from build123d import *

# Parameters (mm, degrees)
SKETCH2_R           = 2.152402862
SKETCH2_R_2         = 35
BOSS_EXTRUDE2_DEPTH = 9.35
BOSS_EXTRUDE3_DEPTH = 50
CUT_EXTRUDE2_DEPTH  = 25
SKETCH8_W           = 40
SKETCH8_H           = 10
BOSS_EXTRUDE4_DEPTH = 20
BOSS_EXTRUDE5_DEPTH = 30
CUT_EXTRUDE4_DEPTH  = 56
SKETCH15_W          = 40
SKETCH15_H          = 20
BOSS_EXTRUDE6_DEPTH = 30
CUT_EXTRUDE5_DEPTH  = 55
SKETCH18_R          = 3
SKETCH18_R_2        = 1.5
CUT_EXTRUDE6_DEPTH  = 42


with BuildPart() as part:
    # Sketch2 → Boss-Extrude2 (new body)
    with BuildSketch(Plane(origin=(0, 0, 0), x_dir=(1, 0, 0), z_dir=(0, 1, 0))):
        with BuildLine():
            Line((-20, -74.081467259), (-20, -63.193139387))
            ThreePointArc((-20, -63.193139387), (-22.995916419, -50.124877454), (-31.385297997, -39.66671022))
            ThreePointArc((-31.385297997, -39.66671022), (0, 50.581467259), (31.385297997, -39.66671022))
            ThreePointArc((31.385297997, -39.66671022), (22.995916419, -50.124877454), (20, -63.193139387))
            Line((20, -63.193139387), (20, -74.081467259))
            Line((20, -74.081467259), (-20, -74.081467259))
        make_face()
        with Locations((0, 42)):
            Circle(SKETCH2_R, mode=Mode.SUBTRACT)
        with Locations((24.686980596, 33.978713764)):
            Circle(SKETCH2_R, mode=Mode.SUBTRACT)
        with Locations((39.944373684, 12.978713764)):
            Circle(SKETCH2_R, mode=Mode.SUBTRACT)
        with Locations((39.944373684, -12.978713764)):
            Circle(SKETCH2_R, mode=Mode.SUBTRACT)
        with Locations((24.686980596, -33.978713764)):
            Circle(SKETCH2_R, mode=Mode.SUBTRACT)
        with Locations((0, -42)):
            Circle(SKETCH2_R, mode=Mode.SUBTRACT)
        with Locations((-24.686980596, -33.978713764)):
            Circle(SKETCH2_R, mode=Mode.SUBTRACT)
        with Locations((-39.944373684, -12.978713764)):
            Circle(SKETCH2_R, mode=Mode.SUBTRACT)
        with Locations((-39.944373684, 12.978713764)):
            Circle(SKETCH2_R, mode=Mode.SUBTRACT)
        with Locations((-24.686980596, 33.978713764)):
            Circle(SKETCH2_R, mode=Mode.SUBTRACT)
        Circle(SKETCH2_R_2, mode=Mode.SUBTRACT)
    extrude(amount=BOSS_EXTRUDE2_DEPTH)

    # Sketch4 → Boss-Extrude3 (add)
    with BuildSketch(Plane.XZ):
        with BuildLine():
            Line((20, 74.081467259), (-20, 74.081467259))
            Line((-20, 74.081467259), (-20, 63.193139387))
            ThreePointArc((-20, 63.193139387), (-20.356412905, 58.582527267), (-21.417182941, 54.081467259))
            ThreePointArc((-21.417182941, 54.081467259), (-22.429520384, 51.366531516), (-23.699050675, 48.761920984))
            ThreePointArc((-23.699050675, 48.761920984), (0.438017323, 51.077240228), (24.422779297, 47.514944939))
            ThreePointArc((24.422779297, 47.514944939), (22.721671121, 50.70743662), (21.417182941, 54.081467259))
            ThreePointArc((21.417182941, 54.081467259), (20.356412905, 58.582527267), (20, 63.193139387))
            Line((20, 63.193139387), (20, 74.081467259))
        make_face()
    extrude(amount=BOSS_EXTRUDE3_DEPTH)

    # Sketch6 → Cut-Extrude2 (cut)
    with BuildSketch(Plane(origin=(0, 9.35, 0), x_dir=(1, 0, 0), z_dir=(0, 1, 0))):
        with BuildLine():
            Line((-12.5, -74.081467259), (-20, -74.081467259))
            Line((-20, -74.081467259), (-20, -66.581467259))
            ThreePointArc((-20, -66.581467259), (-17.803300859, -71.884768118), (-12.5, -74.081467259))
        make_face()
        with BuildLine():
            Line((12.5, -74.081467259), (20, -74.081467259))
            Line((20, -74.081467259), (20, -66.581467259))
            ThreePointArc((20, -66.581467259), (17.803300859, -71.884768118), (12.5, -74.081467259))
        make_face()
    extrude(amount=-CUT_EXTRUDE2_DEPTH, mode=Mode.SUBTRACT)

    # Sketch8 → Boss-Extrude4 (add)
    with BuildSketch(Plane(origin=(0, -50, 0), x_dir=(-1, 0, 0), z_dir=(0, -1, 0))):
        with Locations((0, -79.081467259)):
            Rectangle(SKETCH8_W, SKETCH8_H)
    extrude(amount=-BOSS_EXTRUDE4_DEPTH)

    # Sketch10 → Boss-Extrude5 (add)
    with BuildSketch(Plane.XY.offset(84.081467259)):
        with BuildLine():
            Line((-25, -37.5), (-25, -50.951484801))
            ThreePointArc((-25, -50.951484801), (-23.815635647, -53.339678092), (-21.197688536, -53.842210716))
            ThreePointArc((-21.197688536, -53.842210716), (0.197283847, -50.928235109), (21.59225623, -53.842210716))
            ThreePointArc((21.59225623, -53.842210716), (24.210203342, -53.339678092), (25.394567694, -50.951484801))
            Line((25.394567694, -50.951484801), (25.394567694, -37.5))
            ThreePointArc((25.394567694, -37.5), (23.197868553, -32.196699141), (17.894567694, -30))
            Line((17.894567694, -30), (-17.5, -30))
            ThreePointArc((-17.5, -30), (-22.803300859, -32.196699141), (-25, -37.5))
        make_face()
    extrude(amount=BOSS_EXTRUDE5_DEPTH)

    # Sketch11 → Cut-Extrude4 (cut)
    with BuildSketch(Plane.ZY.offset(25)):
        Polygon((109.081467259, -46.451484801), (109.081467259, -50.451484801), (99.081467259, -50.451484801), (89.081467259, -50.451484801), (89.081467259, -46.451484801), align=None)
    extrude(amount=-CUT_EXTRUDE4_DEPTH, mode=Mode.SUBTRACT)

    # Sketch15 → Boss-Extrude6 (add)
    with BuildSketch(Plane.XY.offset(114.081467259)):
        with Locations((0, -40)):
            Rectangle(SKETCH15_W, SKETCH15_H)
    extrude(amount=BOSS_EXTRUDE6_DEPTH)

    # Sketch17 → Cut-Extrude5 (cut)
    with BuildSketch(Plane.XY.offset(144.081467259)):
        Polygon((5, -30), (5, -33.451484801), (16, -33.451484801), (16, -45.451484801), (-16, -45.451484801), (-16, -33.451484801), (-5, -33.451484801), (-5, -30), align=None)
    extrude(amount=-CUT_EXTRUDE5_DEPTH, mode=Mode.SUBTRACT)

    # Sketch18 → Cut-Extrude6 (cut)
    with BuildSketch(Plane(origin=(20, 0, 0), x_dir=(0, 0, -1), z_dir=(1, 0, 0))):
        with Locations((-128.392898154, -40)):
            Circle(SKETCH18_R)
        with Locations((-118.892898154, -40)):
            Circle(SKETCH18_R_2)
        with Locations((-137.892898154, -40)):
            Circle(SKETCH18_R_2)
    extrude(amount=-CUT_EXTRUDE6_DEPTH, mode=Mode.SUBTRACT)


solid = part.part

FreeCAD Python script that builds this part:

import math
import FreeCAD as App
import Part
import Sketcher
Q = App.Units.Quantity


def add_polygon(sketch, points):
    """Adds a closed chain of lines whose ends are joined by coincident constraints."""
    first, n = sketch.GeometryCount, len(points)
    for a, b in zip(points, points[1:] + points[:1]):
        sketch.addGeometry(Part.LineSegment(App.Vector(*a, 0), App.Vector(*b, 0)), False)
    for i in range(n):
        sketch.addConstraint(Sketcher.Constraint("Coincident", first + i, 2, first + (i + 1) % n, 1))

doc = App.newDocument("Part")
body = doc.addObject("PartDesign::Body", "Body")

# Sketch on XZ plane
sketch1 = body.newObject("Sketcher::SketchObject", "Sketch")
sketch1.AttachmentSupport = (doc.getObject("XZ_Plane"), [""])
sketch1.MapMode = "FlatFace"
sketch1.addGeometry([
    Part.LineSegment(App.Vector(-20, 63.2, 0), App.Vector(-20, 74.1, 0)),  # 0
    Part.LineSegment(App.Vector(-20, 74.1, 0), App.Vector(20, 74.1, 0)),  # 1
    Part.LineSegment(App.Vector(20, 74.1, 0), App.Vector(20, 63.2, 0)),  # 2
    Part.ArcOfCircle(Part.Circle(App.Vector(50, 63.2, 0), App.Vector(0, 0, 1), 30), math.radians(180), math.radians(232)),  # 3
    Part.ArcOfCircle(Part.Circle(App.Vector(0, 0, 0), App.Vector(0, 0, 1), 50.6), math.radians(128), math.radians(412)),  # 4
    Part.ArcOfCircle(Part.Circle(App.Vector(-50, 63.2, 0), App.Vector(0, 0, 1), 30), math.radians(-52), math.radians(0)),  # 5
    Part.Circle(App.Vector(24.7, 34, 0), App.Vector(0, 0, 1), 2.2),  # 6
    Part.Circle(App.Vector(39.9, 13, 0), App.Vector(0, 0, 1), 2.2),  # 7
    Part.Circle(App.Vector(0, 42, 0), App.Vector(0, 0, 1), 2.2),  # 8
    Part.Circle(App.Vector(-24.7, 34, 0), App.Vector(0, 0, 1), 2.2),  # 9
    Part.Circle(App.Vector(-39.9, 13, 0), App.Vector(0, 0, 1), 2.2),  # 10
    Part.Circle(App.Vector(39.9, -13, 0), App.Vector(0, 0, 1), 2.2),  # 11
    Part.Circle(App.Vector(24.7, -34, 0), App.Vector(0, 0, 1), 2.2),  # 12
    Part.Circle(App.Vector(0, 0, 0), App.Vector(0, 0, 1), 35),  # 13
    Part.Circle(App.Vector(-39.9, -13, 0), App.Vector(0, 0, 1), 2.2),  # 14
    Part.Circle(App.Vector(0, -42, 0), App.Vector(0, 0, 1), 2.2),  # 15
    Part.Circle(App.Vector(-24.7, -34, 0), App.Vector(0, 0, 1), 2.2),  # 16
], False)
sketch1.addConstraint([
    Sketcher.Constraint("Coincident", 0, 2, 1, 1),
    Sketcher.Constraint("Coincident", 1, 2, 2, 1),
    Sketcher.Constraint("Tangent", 2, 2, 3, 1),
    Sketcher.Constraint("Tangent", 3, 2, 4, 2),
    Sketcher.Constraint("Tangent", 4, 1, 5, 1),
    Sketcher.Constraint("Tangent", 5, 2, 0, 1),
    Sketcher.Constraint("Vertical", 0),
    Sketcher.Constraint("Horizontal", 1),
    Sketcher.Constraint("Vertical", 2),
    Sketcher.Constraint("Coincident", 4, 3, -1, 1),
    Sketcher.Constraint("Coincident", 13, 3, -1, 1),
    Sketcher.Constraint("Equal", 3, 5),
    Sketcher.Constraint("Equal", 6, 7),
    Sketcher.Constraint("Equal", 7, 8),
    Sketcher.Constraint("Equal", 8, 9),
    Sketcher.Constraint("Equal", 9, 10),
    Sketcher.Constraint("Equal", 10, 11),
    Sketcher.Constraint("Equal", 11, 12),
    Sketcher.Constraint("Equal", 12, 14),
    Sketcher.Constraint("Equal", 14, 15),
    Sketcher.Constraint("Equal", 15, 16),
    Sketcher.Constraint("Symmetric", 10, 3, 11, 3, -1, 1),
    Sketcher.Constraint("Symmetric", 9, 3, 12, 3, -1, 1),
    Sketcher.Constraint("Symmetric", 7, 3, 14, 3, -1, 1),
    Sketcher.Constraint("Symmetric", 8, 3, 15, 3, -1, 1),
    Sketcher.Constraint("Symmetric", 6, 3, 16, 3, -1, 1),
    Sketcher.Constraint("Symmetric", 6, 3, 9, 3, -2),
    Sketcher.Constraint("Symmetric", 7, 3, 10, 3, -2),
    Sketcher.Constraint("PointOnObject", 8, 3, -2),
    Sketcher.Constraint("Horizontal", 3, 3, 5, 3),
    Sketcher.Constraint("Diameter", 13, Q("70 mm")),
    Sketcher.Constraint("Radius", 3, Q("30 mm")),
    Sketcher.Constraint("DistanceX", 1, 1, 1, 2, Q("40 mm")),
    Sketcher.Constraint("DistanceY", -1, 1, 8, 3, Q("42 mm")),
    Sketcher.Constraint("DistanceY", 7, 3, 6, 3, Q("21 mm")),
    Sketcher.Constraint("Diameter", 6, Q("4.304806 mm")),
    Sketcher.Constraint("Radius", 4, Q("50.581467 mm")),
    Sketcher.Constraint("DistanceY", 0, 1, 0, 2, Q("10.888328 mm")),
    Sketcher.Constraint("DistanceX", -1, 1, 6, 3, Q("24.686981 mm")),
    Sketcher.Constraint("DistanceY", -1, 1, 6, 3, Q("33.978714 mm")),
    Sketcher.Constraint("DistanceX", -1, 1, 7, 3, Q("39.944374 mm")),
])
pad1 = body.newObject("PartDesign::Pad", "Pad")
pad1.Profile = sketch1
pad1.Length = 9.35
pad1.Reversed = True

# Sketch on XZ plane
sketch2 = body.newObject("Sketcher::SketchObject", "Sketch001")
sketch2.AttachmentSupport = (doc.getObject("XZ_Plane"), [""])
sketch2.MapMode = "FlatFace"
sketch2.addGeometry([
    Part.LineSegment(App.Vector(20, 74, 0), App.Vector(-20, 74, 0)),  # 0
    Part.LineSegment(App.Vector(-20, 74, 0), App.Vector(-20, 63, 0)),  # 1
    Part.ArcOfCircle(Part.Circle(App.Vector(-50, 63, 0), App.Vector(0, 0, 1), 30), math.radians(-17.68), math.radians(0)),  # 2
    Part.ArcOfCircle(Part.Circle(App.Vector(-50, 63, 0), App.Vector(0, 0, 1), 30), math.radians(-28.75), math.radians(-17.68)),  # 3
    Part.ArcOfCircle(Part.Circle(App.Vector(-2, -49, 0), App.Vector(0, 0, 1), 100), math.radians(75), math.radians(102)),  # 4
    Part.ArcOfCircle(Part.Circle(App.Vector(50, 63, 0), App.Vector(0, 0, 1), 30), math.radians(-162.32), math.radians(-148.49)),  # 5
    Part.ArcOfCircle(Part.Circle(App.Vector(50, 63, 0), App.Vector(0, 0, 1), 30), math.radians(-180), math.radians(-162.32)),  # 6
    Part.LineSegment(App.Vector(20, 63, 0), App.Vector(20, 74, 0)),  # 7
], False)
sketch2.addConstraint([
    Sketcher.Constraint("Coincident", 0, 2, 1, 1),
    Sketcher.Constraint("Tangent", 1, 2, 2, 2),
    Sketcher.Constraint("Tangent", 2, 1, 3, 2),
    Sketcher.Constraint("Coincident", 3, 1, 4, 2),
    Sketcher.Constraint("Coincident", 4, 1, 5, 2),
    Sketcher.Constraint("Tangent", 5, 1, 6, 2),
    Sketcher.Constraint("Tangent", 6, 1, 7, 1),
    Sketcher.Constraint("Coincident", 7, 2, 0, 1),
    Sketcher.Constraint("Horizontal", 0),
    Sketcher.Constraint("Vertical", 1),
    Sketcher.Constraint("Vertical", 7),
    Sketcher.Constraint("Equal", 2, 3),
    Sketcher.Constraint("Equal", 3, 5),
    Sketcher.Constraint("Equal", 5, 6),
    Sketcher.Constraint("Symmetric", 2, 3, 5, 3, -2),
    Sketcher.Constraint("Horizontal", 2, 1, 5, 1),
    Sketcher.Constraint("Radius", 2, Q("30 mm")),
    Sketcher.Constraint("Radius", 4, Q("100 mm")),
    Sketcher.Constraint("DistanceX", 0, 2, 0, 1, Q("40 mm")),
    Sketcher.Constraint("DistanceY", 2, 1, 0, 2, Q("20 mm")),
    Sketcher.Constraint("DistanceY", 1, 2, 1, 1, Q("10.888328 mm")),
    Sketcher.Constraint("DistanceY", -1, 1, 2, 3, Q("63.193139 mm")),
    Sketcher.Constraint("DistanceX", 3, 1, -1, 1, Q("23.699051 mm")),
    Sketcher.Constraint("DistanceX", -1, 1, 4, 1, Q("24.422779 mm")),
])
pad2 = body.newObject("PartDesign::Pad", "Pad001")
pad2.Profile = sketch2
pad2.Length = 50

# Sketch on XZ plane
sketch3 = body.newObject("Sketcher::SketchObject", "Sketch002")
sketch3.AttachmentSupport = (doc.getObject("XZ_Plane"), [""])
sketch3.MapMode = "FlatFace"
sketch3.AttachmentOffset = App.Placement(App.Vector(0, 0, -9.35), App.Rotation())
sketch3.addGeometry([
    Part.LineSegment(App.Vector(-20, 74, 0), App.Vector(-12, 74, 0)),  # 0
    Part.ArcOfCircle(Part.Circle(App.Vector(-12, 67, 0), App.Vector(0, 0, 1), 8), math.radians(90), math.radians(180)),  # 1
    Part.LineSegment(App.Vector(-20, 67, 0), App.Vector(-20, 74, 0)),  # 2
    Part.LineSegment(App.Vector(12, 74, 0), App.Vector(20, 74, 0)),  # 3
    Part.LineSegment(App.Vector(20, 74, 0), App.Vector(20, 67, 0)),  # 4
    Part.ArcOfCircle(Part.Circle(App.Vector(12, 67, 0), App.Vector(0, 0, 1), 8), math.radians(0), math.radians(90)),  # 5
], False)
sketch3.addConstraint([
    Sketcher.Constraint("Tangent", 0, 2, 1, 1),
    Sketcher.Constraint("Tangent", 1, 2, 2, 1),
    Sketcher.Constraint("Coincident", 2, 2, 0, 1),
    Sketcher.Constraint("Coincident", 3, 2, 4, 1),
    Sketcher.Constraint("Tangent", 4, 2, 5, 1),
    Sketcher.Constraint("Tangent", 5, 2, 3, 1),
    Sketcher.Constraint("Horizontal", 0),
    Sketcher.Constraint("Vertical", 2),
    Sketcher.Constraint("Horizontal", 3),
    Sketcher.Constraint("Vertical", 4),
    Sketcher.Constraint("Equal", 1, 5),
    Sketcher.Constraint("Symmetric", 1, 3, 5, 3, -2),
    Sketcher.Constraint("Radius", 1, Q("7.5 mm")),
    Sketcher.Constraint("DistanceX", 1, 2, -1, 1, Q("20 mm")),
    Sketcher.Constraint("DistanceY", -1, 1, 1, 3, Q("66.581467 mm")),
])
pocket1 = body.newObject("PartDesign::Pocket", "Pocket")
pocket1.Profile = sketch3
pocket1.Length = 25
pocket1.Reversed = True

# Sketch on XZ plane
sketch4 = body.newObject("Sketcher::SketchObject", "Sketch003")
sketch4.AttachmentSupport = (doc.getObject("XZ_Plane"), [""])
sketch4.MapMode = "FlatFace"
sketch4.AttachmentOffset = App.Placement(App.Vector(0, 0, 50), App.Rotation())
add_polygon(sketch4, [(20, 74), (20, 84), (-20, 84), (-20, 74)])  # lines 0-3
sketch4.addConstraint([
    Sketcher.Constraint("Vertical", 0),
    Sketcher.Constraint("Horizontal", 1),
    Sketcher.Constraint("Vertical", 2),
    Sketcher.Constraint("Horizontal", 3),
    Sketcher.Constraint("DistanceX", 1, 2, 1, 1, Q("40 mm")),
    Sketcher.Constraint("DistanceY", 0, 1, 0, 2, Q("10 mm")),
    Sketcher.Constraint("DistanceX", -1, 1, 0, 2, Q("20 mm")),
    Sketcher.Constraint("DistanceY", -1, 1, 0, 2, Q("84.081467 mm")),
])
pad3 = body.newObject("PartDesign::Pad", "Pad002")
pad3.Profile = sketch4
pad3.Length = 20
pad3.Reversed = True

# Sketch on XY plane
sketch5 = body.newObject("Sketcher::SketchObject", "Sketch004")
sketch5.AttachmentSupport = (doc.getObject("XY_Plane"), [""])
sketch5.MapMode = "FlatFace"
sketch5.AttachmentOffset = App.Placement(App.Vector(0, 0, 84.081467), App.Rotation())
sketch5.addGeometry([
    Part.LineSegment(App.Vector(-25, -37.5, 0), App.Vector(-25, -51, 0)),  # 0
    Part.ArcOfCircle(Part.Circle(App.Vector(-22, -51, 0), App.Vector(0, 0, 1), 3), math.radians(-180), math.radians(-74)),  # 1
    Part.ArcOfCircle(Part.Circle(App.Vector(0.2, -130.9, 0), App.Vector(0, 0, 1), 80), math.radians(74), math.radians(106)),  # 2
    Part.ArcOfCircle(Part.Circle(App.Vector(22.4, -51, 0), App.Vector(0, 0, 1), 3), math.radians(-106), math.radians(0)),  # 3
    Part.LineSegment(App.Vector(25.4, -51, 0), App.Vector(25.4, -37.5, 0)),  # 4
    Part.ArcOfCircle(Part.Circle(App.Vector(17.9, -37.5, 0), App.Vector(0, 0, 1), 7.5), math.radians(0), math.radians(90)),  # 5
    Part.LineSegment(App.Vector(17.9, -30, 0), App.Vector(-17.5, -30, 0)),  # 6
    Part.ArcOfCircle(Part.Circle(App.Vector(-17.5, -37.5, 0), App.Vector(0, 0, 1), 7.5), math.radians(90), math.radians(180)),  # 7
], False)
sketch5.addConstraint([
    Sketcher.Constraint("Tangent", 0, 2, 1, 1),
    Sketcher.Constraint("Tangent", 1, 2, 2, 2),
    Sketcher.Constraint("Tangent", 2, 1, 3, 1),
    Sketcher.Constraint("Tangent", 3, 2, 4, 1),
    Sketcher.Constraint("Tangent", 4, 2, 5, 1),
    Sketcher.Constraint("Tangent", 5, 2, 6, 1),
    Sketcher.Constraint("Tangent", 6, 2, 7, 1),
    Sketcher.Constraint("Tangent", 7, 2, 0, 1),
    Sketcher.Constraint("Vertical", 0),
    Sketcher.Constraint("Vertical", 4),
    Sketcher.Constraint("Horizontal", 6),
    Sketcher.Constraint("Equal", 1, 3),
    Sketcher.Constraint("Equal", 5, 7),
    Sketcher.Constraint("Horizontal", 1, 3, 3, 3),
    Sketcher.Constraint("Radius", 1, Q("3 mm")),
    Sketcher.Constraint("Radius", 2, Q("80 mm")),
    Sketcher.Constraint("Radius", 5, Q("7.5 mm")),
    Sketcher.Constraint("DistanceX", 1, 3, -1, 1, Q("22 mm")),
    Sketcher.Constraint("DistanceY", 5, 2, -1, 1, Q("30 mm")),
    Sketcher.Constraint("DistanceX", 6, 2, 6, 1, Q("35.394568 mm")),
    Sketcher.Constraint("DistanceY", 0, 2, 0, 1, Q("13.451485 mm")),
])
pad4 = body.newObject("PartDesign::Pad", "Pad003")
pad4.Profile = sketch5
pad4.Length = 30

# Sketch on YZ plane
sketch6 = body.newObject("Sketcher::SketchObject", "Sketch005")
sketch6.AttachmentSupport = (doc.getObject("YZ_Plane"), [""])
sketch6.MapMode = "FlatFace"
sketch6.AttachmentOffset = App.Placement(App.Vector(0, 0, -25), App.Rotation())
add_polygon(sketch6, [(-50.5, 109.1), (-46.5, 109.1), (-46.5, 89.1), (-50.5, 89.1)])  # lines 0-3
sketch6.addConstraint([
    Sketcher.Constraint("Horizontal", 0),
    Sketcher.Constraint("Vertical", 1),
    Sketcher.Constraint("Horizontal", 2),
    Sketcher.Constraint("Vertical", 3),
    Sketcher.Constraint("DistanceX", 0, 1, 0, 2, Q("4 mm")),
    Sketcher.Constraint("DistanceY", 1, 2, 1, 1, Q("20 mm")),
    Sketcher.Constraint("DistanceX", 0, 2, -1, 1, Q("46.451485 mm")),
    Sketcher.Constraint("DistanceY", -1, 1, 0, 2, Q("109.081467 mm")),
])
pocket2 = body.newObject("PartDesign::Pocket", "Pocket001")
pocket2.Profile = sketch6
pocket2.Length = 56
pocket2.Reversed = True

# Sketch on XY plane
sketch7 = body.newObject("Sketcher::SketchObject", "Sketch006")
sketch7.AttachmentSupport = (doc.getObject("XY_Plane"), [""])
sketch7.MapMode = "FlatFace"
sketch7.AttachmentOffset = App.Placement(App.Vector(0, 0, 114.081467), App.Rotation())
add_polygon(sketch7, [(-20, -30), (-20, -50), (20, -50), (20, -30)])  # lines 0-3
sketch7.addConstraint([
    Sketcher.Constraint("Vertical", 0),
    Sketcher.Constraint("Horizontal", 1),
    Sketcher.Constraint("Vertical", 2),
    Sketcher.Constraint("Horizontal", 3),
    Sketcher.Constraint("DistanceX", 1, 1, 1, 2, Q("40 mm")),
    Sketcher.Constraint("DistanceY", 0, 2, 0, 1, Q("20 mm")),
    Sketcher.Constraint("DistanceX", 0, 2, -1, 1, Q("20 mm")),
    Sketcher.Constraint("DistanceY", 0, 2, -1, 1, Q("50 mm")),
])
pad5 = body.newObject("PartDesign::Pad", "Pad004")
pad5.Profile = sketch7
pad5.Length = 30

# Sketch on XY plane
sketch8 = body.newObject("Sketcher::SketchObject", "Sketch007")
sketch8.AttachmentSupport = (doc.getObject("XY_Plane"), [""])
sketch8.MapMode = "FlatFace"
sketch8.AttachmentOffset = App.Placement(App.Vector(0, 0, 144.081467), App.Rotation())
add_polygon(sketch8, [(5, -33.5), (5, -30), (-5, -30), (-5, -33.5), (-16, -33.5), (-16, -45.5), (16, -45.5), (16, -33.5)])  # lines 0-7
sketch8.addConstraint([
    Sketcher.Constraint("Vertical", 0),
    Sketcher.Constraint("Horizontal", 1),
    Sketcher.Constraint("Vertical", 2),
    Sketcher.Constraint("Horizontal", 3),
    Sketcher.Constraint("Vertical", 4),
    Sketcher.Constraint("Horizontal", 5),
    Sketcher.Constraint("Vertical", 6),
    Sketcher.Constraint("Horizontal", 7),
    Sketcher.Constraint("Symmetric", 3, 2, 6, 2, -2),
    Sketcher.Constraint("Equal", 3, 7),
    Sketcher.Constraint("DistanceX", 1, 2, 1, 1, Q("10 mm")),
    Sketcher.Constraint("DistanceX", 3, 2, 3, 1, Q("11 mm")),
    Sketcher.Constraint("DistanceY", 4, 2, 4, 1, Q("12 mm")),
    Sketcher.Constraint("DistanceY", 0, 2, -1, 1, Q("30 mm")),
    Sketcher.Constraint("DistanceY", 0, 1, 0, 2, Q("3.451485 mm")),
])
pocket3 = body.newObject("PartDesign::Pocket", "Pocket002")
pocket3.Profile = sketch8
pocket3.Length = 55

# Sketch on YZ plane
sketch9 = body.newObject("Sketcher::SketchObject", "Sketch008")
sketch9.AttachmentSupport = (doc.getObject("YZ_Plane"), [""])
sketch9.MapMode = "FlatFace"
sketch9.AttachmentOffset = App.Placement(App.Vector(0, 0, 20), App.Rotation())
sketch9.addGeometry([
    Part.Circle(App.Vector(-40, 128.4, 0), App.Vector(0, 0, 1), 3),
    Part.Circle(App.Vector(-40, 118.9, 0), App.Vector(0, 0, 1), 1.5),
    Part.Circle(App.Vector(-40, 137.9, 0), App.Vector(0, 0, 1), 1.5),
], False)
sketch9.addConstraint([
    Sketcher.Constraint("Equal", 1, 2),
    Sketcher.Constraint("Vertical", 0, 3, 1, 3),
    Sketcher.Constraint("Vertical", 1, 3, 2, 3),
    Sketcher.Constraint("Diameter", 0, Q("6 mm")),
    Sketcher.Constraint("Diameter", 1, Q("3 mm")),
    Sketcher.Constraint("DistanceX", 0, 3, -1, 1, Q("40 mm")),
    Sketcher.Constraint("DistanceY", 1, 3, 2, 3, Q("19 mm")),
    Sketcher.Constraint("DistanceY", 1, 3, 0, 3, Q("9.5 mm")),
    Sketcher.Constraint("DistanceY", -1, 1, 0, 3, Q("128.392898 mm")),
])
pocket4 = body.newObject("PartDesign::Pocket", "Pocket003")
pocket4.Profile = sketch9
pocket4.Length = 42

doc.recompute()
